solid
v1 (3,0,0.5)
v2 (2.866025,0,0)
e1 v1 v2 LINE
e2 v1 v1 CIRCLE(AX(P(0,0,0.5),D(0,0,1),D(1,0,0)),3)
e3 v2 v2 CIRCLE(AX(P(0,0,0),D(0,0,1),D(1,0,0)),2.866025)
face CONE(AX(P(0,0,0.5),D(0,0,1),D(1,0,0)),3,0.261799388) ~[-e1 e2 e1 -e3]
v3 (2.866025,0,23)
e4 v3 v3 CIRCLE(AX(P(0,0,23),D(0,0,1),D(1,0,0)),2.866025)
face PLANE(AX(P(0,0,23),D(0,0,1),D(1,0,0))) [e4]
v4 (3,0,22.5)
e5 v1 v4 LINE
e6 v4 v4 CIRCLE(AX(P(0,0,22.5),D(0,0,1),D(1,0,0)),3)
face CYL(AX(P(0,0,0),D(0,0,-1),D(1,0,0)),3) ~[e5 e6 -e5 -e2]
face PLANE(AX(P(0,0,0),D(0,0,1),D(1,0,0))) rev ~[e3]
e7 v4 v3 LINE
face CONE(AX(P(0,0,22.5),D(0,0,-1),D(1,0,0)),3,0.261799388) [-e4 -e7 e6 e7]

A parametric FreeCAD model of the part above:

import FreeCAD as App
import Part
import Sketcher

V = App.Vector
Q = App.Units.Quantity


def edges_at(feature, points):
    """Names of the edges that pass closest to the given points."""
    edges = feature.Shape.Edges
    near = lambda p: min(range(len(edges)), key=lambda i: edges[i].distToShape(Part.Vertex(*p))[0])
    return sorted({f"Edge{near(p) + 1}" for p in points})

doc = App.newDocument("Part")
body = doc.addObject("PartDesign::Body", "Body")

sketch1 = doc.addObject("Sketcher::SketchObject", "Sketch")
body.addObject(sketch1)
sketch1.AttachmentSupport = (doc.XY_Plane, [""])
sketch1.MapMode = "FlatFace"
sketch1.addGeometry(Part.Circle(V(0, 0, 0), V(0, 0, 1), 3), False)
sketch1.addConstraint(Sketcher.Constraint("Coincident", 0, 3, -1, 1))
sketch1.addConstraint(Sketcher.Constraint("Diameter", 0, Q("6 mm")))
pad1 = doc.addObject("PartDesign::Pad", "Pad")
body.addObject(pad1)
pad1.Profile = sketch1
pad1.Length = 23
doc.recompute()

chamfer = doc.addObject("PartDesign::Chamfer", "Chamfer")
body.addObject(chamfer)
chamfer.Base = (pad1, edges_at(pad1, [(-3, 0, 0), (-3, 0, 23)]))
chamfer.ChamferType = "Distance and Angle"
chamfer.Size = 0.5
chamfer.Angle = 15

doc.recompute()
